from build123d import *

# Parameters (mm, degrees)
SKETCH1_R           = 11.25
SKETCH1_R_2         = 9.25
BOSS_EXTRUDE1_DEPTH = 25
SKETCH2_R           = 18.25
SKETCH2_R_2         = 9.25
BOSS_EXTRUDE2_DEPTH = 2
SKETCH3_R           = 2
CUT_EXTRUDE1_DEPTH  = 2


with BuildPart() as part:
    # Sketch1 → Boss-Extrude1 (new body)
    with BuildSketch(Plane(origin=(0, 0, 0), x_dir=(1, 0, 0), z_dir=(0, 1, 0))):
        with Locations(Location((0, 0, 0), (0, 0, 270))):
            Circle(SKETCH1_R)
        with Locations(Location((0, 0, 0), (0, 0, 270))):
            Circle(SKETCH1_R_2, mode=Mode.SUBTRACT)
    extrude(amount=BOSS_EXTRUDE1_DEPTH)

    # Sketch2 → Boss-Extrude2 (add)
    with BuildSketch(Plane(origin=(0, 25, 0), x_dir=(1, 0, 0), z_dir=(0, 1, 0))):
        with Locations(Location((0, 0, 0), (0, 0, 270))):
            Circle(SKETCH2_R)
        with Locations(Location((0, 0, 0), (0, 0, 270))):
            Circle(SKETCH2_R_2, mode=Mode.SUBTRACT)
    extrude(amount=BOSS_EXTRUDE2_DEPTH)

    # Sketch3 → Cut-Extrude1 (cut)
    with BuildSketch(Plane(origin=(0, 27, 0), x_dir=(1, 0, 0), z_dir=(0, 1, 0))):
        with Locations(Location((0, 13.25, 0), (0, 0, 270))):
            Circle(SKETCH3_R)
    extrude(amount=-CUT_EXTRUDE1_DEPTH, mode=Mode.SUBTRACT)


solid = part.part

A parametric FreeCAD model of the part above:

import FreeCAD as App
import Part
import Sketcher
from FreeCAD import Vector
Q = App.Units.Quantity

doc = App.newDocument("Part")
params = doc.addObject("Spreadsheet::Sheet", "Params")
for row, (alias, value) in enumerate([
    ("sketch1_diameter", "22.5 mm"),
    ("sketch1_diameter2", "18.5 mm"),
    ("pad1_length", "25 mm"),
    ("sketch2_diameter", "36.5 mm"),
    ("sketch2_diameter2", "18.5 mm"),
    ("pad2_length", "2 mm"),
    ("sketch3_diameter", "4 mm"),
    ("pocket1_length", "2 mm"),
], start=1):
    params.set(f"A{row}", alias)
    params.set(f"B{row}", "=" + value)
    params.setAlias(f"B{row}", alias)

body = doc.addObject("PartDesign::Body", "Body")

# Sketch on XZ plane
sketch1 = doc.addObject("Sketcher::SketchObject", "Sketch")
body.addObject(sketch1)
sketch1.AttachmentSupport = (doc.XZ_Plane, [""])
sketch1.MapMode = "FlatFace"
sketch1.addGeometry(Part.Circle(Vector(0, 0, 0), Vector(0, 0, 1), 11), False)
sketch1.addGeometry(Part.Circle(Vector(0, 0, 0), Vector(0, 0, 1), 9), False)
sketch1.addConstraint(Sketcher.Constraint("Coincident", 0, 3, -1, 1))
sketch1.addConstraint(Sketcher.Constraint("Coincident", 1, 3, -1, 1))
sketch1.addConstraint(Sketcher.Constraint("Diameter", 0, Q("22.5 mm")))
sketch1.addConstraint(Sketcher.Constraint("Diameter", 1, Q("18.5 mm")))
sketch1.setExpression("Constraints[2]", "Params.sketch1_diameter")
sketch1.setExpression("Constraints[3]", "Params.sketch1_diameter2")
pad1 = doc.addObject("PartDesign::Pad", "Pad")
body.addObject(pad1)
pad1.Profile = sketch1
pad1.setExpression("Length", "Params.pad1_length")
pad1.Reversed = True

# Sketch on XZ plane
sketch2 = doc.addObject("Sketcher::SketchObject", "Sketch001")
body.addObject(sketch2)
sketch2.AttachmentSupport = (doc.XZ_Plane, [""])
sketch2.MapMode = "FlatFace"
sketch2.AttachmentOffset = App.Placement(Vector(0, 0, -25), App.Rotation())
sketch2.addGeometry(Part.Circle(Vector(0, 0, 0), Vector(0, 0, 1), 18), False)
sketch2.addGeometry(Part.Circle(Vector(0, 0, 0), Vector(0, 0, 1), 9), False)
sketch2.addConstraint(Sketcher.Constraint("Coincident", 0, 3, -1, 1))
sketch2.addConstraint(Sketcher.Constraint("Coincident", 1, 3, -1, 1))
sketch2.addConstraint(Sketcher.Constraint("Diameter", 0, Q("36.5 mm")))
sketch2.addConstraint(Sketcher.Constraint("Diameter", 1, Q("18.5 mm")))
sketch2.setExpression("Constraints[2]", "Params.sketch2_diameter")
sketch2.setExpression("Constraints[3]", "Params.sketch2_diameter2")
pad2 = doc.addObject("PartDesign::Pad", "Pad001")
body.addObject(pad2)
pad2.Profile = sketch2
pad2.setExpression("Length", "Params.pad2_length")
pad2.Reversed = True

# Sketch on XZ plane
sketch3 = doc.addObject("Sketcher::SketchObject", "Sketch002")
body.addObject(sketch3)
sketch3.AttachmentSupport = (doc.XZ_Plane, [""])
sketch3.MapMode = "FlatFace"
sketch3.AttachmentOffset = App.Placement(Vector(0, 0, -27), App.Rotation())
sketch3.addGeometry(Part.Circle(Vector(0, -13.2, 0), Vector(0, 0, 1), 2), False)
sketch3.addConstraint(Sketcher.Constraint("PointOnObject", 0, 3, -2))
sketch3.addConstraint(Sketcher.Constraint("Diameter", 0, Q("4 mm")))
sketch3.addConstraint(Sketcher.Constraint("DistanceY", 0, 3, -1, 1, Q("13.25 mm")))
sketch3.setExpression("Constraints[1]", "Params.sketch3_diameter")
pocket1 = doc.addObject("PartDesign::Pocket", "Pocket")
body.addObject(pocket1)
pocket1.Profile = sketch3
pocket1.setExpression("Length", "Params.pocket1_length")
pocket1.Reversed = True

doc.recompute()
